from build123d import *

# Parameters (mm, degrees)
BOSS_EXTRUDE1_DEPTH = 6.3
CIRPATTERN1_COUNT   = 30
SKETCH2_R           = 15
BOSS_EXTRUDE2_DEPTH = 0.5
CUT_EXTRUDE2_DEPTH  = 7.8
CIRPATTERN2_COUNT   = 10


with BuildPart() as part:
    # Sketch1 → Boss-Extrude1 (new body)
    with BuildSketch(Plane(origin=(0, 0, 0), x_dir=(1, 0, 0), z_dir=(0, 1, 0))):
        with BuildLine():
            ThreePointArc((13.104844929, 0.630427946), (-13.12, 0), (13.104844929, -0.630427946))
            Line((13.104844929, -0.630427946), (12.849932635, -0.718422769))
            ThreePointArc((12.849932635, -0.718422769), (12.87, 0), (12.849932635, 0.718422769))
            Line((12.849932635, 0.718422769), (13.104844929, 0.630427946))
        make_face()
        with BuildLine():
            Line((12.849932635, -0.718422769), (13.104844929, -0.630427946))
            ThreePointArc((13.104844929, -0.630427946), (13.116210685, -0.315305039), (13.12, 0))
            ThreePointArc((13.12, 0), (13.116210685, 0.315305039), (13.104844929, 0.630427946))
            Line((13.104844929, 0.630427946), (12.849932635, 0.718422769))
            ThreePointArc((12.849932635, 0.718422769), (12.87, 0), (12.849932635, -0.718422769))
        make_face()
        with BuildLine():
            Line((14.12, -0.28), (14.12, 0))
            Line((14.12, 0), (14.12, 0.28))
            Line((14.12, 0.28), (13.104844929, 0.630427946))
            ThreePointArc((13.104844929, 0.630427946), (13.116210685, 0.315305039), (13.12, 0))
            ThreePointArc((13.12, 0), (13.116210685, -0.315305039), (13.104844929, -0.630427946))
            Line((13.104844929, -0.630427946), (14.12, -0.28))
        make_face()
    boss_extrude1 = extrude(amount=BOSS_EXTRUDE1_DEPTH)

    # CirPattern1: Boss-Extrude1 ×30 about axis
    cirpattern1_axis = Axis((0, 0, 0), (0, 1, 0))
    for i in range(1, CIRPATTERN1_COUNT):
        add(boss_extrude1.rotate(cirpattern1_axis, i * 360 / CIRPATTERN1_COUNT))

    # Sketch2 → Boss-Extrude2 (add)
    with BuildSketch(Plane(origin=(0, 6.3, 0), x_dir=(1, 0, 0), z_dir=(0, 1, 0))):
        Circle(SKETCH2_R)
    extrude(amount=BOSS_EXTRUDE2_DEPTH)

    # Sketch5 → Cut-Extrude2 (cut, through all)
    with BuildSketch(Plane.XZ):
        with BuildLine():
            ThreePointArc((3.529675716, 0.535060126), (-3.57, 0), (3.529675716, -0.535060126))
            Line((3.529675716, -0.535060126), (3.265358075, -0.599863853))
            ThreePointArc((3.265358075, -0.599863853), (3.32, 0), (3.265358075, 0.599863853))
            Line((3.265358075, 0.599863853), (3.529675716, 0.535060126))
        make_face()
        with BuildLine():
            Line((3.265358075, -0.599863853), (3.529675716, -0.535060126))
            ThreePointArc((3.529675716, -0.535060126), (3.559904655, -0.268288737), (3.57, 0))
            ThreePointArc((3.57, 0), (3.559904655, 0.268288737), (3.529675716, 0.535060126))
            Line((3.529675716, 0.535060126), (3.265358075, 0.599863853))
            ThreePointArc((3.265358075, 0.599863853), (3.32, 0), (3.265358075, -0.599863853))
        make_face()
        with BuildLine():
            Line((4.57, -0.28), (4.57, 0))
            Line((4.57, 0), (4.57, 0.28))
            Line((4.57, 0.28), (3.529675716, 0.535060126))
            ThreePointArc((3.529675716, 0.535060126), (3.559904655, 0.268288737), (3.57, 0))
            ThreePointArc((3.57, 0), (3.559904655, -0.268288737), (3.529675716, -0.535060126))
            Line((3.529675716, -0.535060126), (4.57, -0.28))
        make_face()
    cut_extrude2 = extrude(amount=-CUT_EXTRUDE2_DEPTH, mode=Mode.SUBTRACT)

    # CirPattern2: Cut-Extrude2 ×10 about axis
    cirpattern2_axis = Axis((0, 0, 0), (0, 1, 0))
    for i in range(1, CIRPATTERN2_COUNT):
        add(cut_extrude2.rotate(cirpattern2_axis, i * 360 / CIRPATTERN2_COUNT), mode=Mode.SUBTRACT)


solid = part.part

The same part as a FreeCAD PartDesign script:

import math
import FreeCAD as App
import Part
import Sketcher

doc = App.newDocument("Part")
body = doc.addObject("PartDesign::Body", "Body")

# Sketch on XZ plane
sketch1 = doc.addObject("Sketcher::SketchObject", "Sketch")
body.addObject(sketch1)
sketch1.AttachmentSupport = (doc.XZ_Plane, [""])
sketch1.MapMode = "FlatFace"
sketch1.addGeometry([
    Part.ArcOfCircle(Part.Circle(App.Vector(0, 0, 0), App.Vector(0, 0, 1), 13.1), math.radians(3), math.radians(357)),
    Part.LineSegment(App.Vector(13.1, 0.6, 0), App.Vector(14.1, 0.3, 0)),
    Part.LineSegment(App.Vector(14.1, 0.3, 0), App.Vector(14.1, -0.3, 0)),
    Part.LineSegment(App.Vector(14.1, -0.3, 0), App.Vector(13.1, -0.6, 0)),
], False)
sketch1.addConstraint([
    Sketcher.Constraint("Coincident", 0, 1, 1, 1),
    Sketcher.Constraint("Coincident", 1, 2, 2, 1),
    Sketcher.Constraint("Coincident", 2, 2, 3, 1),
    Sketcher.Constraint("Coincident", 3, 2, 0, 2),
    Sketcher.Constraint("Vertical", 2),
    Sketcher.Constraint("Coincident", 0, 3, -1, 1),
    Sketcher.Constraint("Vertical", 0, 1, 3, 2),
    Sketcher.Constraint("Equal", 1, 3),
    Sketcher.Constraint("Radius", 0, 13.12),
    Sketcher.Constraint("DistanceY", 2, 2, 2, 1, 0.56),
    Sketcher.Constraint("DistanceX", -1, 1, 1, 2, 14.12),
    Sketcher.Constraint("Distance", 1, 1.073936),
])
pad1 = doc.addObject("PartDesign::Pad", "Pad")
body.addObject(pad1)
pad1.Profile = sketch1
pad1.Length = 6.3
pad1.Reversed = True
doc.recompute()

polarpattern = doc.addObject("PartDesign::PolarPattern", "PolarPattern")
body.addObject(polarpattern)
polarpattern.Originals = [pad1]
polarpattern.Axis = (doc.Y_Axis, [""])
polarpattern.Angle = 360
polarpattern.Occurrences = 30
body.Tip = polarpattern

# Sketch on XZ plane
sketch2 = doc.addObject("Sketcher::SketchObject", "Sketch001")
body.addObject(sketch2)
sketch2.AttachmentSupport = (doc.XZ_Plane, [""])
sketch2.MapMode = "FlatFace"
sketch2.AttachmentOffset = App.Placement(App.Vector(0, 0, -6.3), App.Rotation())
sketch2.addGeometry(Part.Circle(App.Vector(0, 0, 0), App.Vector(0, 0, 1), 15), False)
sketch2.addConstraint([
    Sketcher.Constraint("Coincident", 0, 3, -1, 1),
    Sketcher.Constraint("Diameter", 0, 30.0),
])
pad2 = doc.addObject("PartDesign::Pad", "Pad001")
body.addObject(pad2)
pad2.Profile = sketch2
pad2.Length = 0.5
pad2.Reversed = True

# Sketch on XZ plane
sketch3 = doc.addObject("Sketcher::SketchObject", "Sketch002")
body.addObject(sketch3)
sketch3.AttachmentSupport = (doc.XZ_Plane, [""])
sketch3.MapMode = "FlatFace"
sketch3.addGeometry([
    Part.ArcOfCircle(Part.Circle(App.Vector(0, 0, 0), App.Vector(0, 0, 1), 3.6), math.radians(9), math.radians(351)),
    Part.LineSegment(App.Vector(3.5, -0.5, 0), App.Vector(4.6, -0.3, 0)),
    Part.LineSegment(App.Vector(4.6, -0.3, 0), App.Vector(4.6, 0.3, 0)),
    Part.LineSegment(App.Vector(4.6, 0.3, 0), App.Vector(3.5, 0.5, 0)),
], False)
sketch3.addConstraint([
    Sketcher.Constraint("Coincident", 0, 2, 1, 1),
    Sketcher.Constraint("Coincident", 1, 2, 2, 1),
    Sketcher.Constraint("Coincident", 2, 2, 3, 1),
    Sketcher.Constraint("Coincident", 3, 2, 0, 1),
    Sketcher.Constraint("Vertical", 2),
    Sketcher.Constraint("Coincident", 0, 3, -1, 1),
    Sketcher.Constraint("Vertical", 0, 2, 3, 2),
    Sketcher.Constraint("Equal", 1, 3),
    Sketcher.Constraint("Radius", 0, 3.57),
    Sketcher.Constraint("DistanceY", 2, 1, 2, 2, 0.56),
    Sketcher.Constraint("DistanceX", -1, 1, 1, 2, 4.57),
    Sketcher.Constraint("DistanceY", 0, 2, -1, 1, 0.53506),
])
pocket1 = doc.addObject("PartDesign::Pocket", "Pocket")
body.addObject(pocket1)
pocket1.Profile = sketch3
pocket1.Type = "ThroughAll"
doc.recompute()

polarpattern2 = doc.addObject("PartDesign::PolarPattern", "PolarPattern001")
body.addObject(polarpattern2)
polarpattern2.Originals = [pocket1]
polarpattern2.Axis = (doc.Y_Axis, [""])
polarpattern2.Angle = 360
polarpattern2.Occurrences = 10
body.Tip = polarpattern2

doc.recompute()
